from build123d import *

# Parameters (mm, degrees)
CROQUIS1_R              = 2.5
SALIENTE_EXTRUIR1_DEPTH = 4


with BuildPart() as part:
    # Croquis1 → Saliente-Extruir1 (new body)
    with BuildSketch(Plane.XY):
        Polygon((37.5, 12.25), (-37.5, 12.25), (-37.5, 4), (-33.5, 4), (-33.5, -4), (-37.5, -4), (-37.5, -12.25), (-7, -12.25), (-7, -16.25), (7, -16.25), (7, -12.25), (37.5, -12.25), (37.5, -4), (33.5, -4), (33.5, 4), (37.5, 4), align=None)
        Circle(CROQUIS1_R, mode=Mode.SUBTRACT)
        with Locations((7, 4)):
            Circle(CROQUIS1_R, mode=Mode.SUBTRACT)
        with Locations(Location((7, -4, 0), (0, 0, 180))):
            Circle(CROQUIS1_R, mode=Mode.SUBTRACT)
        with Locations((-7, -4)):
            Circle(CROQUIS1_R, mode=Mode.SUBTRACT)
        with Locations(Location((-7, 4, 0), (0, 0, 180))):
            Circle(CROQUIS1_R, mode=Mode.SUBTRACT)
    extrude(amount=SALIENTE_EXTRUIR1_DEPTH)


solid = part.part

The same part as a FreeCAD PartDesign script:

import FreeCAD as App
import Part
import Sketcher

V = App.Vector
Q = App.Units.Quantity

doc = App.newDocument("Part")
body = doc.addObject("PartDesign::Body", "Body")

sketch1 = doc.addObject("Sketcher::SketchObject", "Sketch")
body.addObject(sketch1)
sketch1.AttachmentSupport = (doc.XY_Plane, [""])
sketch1.MapMode = "FlatFace"
sketch1.addGeometry([
    Part.LineSegment(V(37.5, 12.2, 0), V(-37.5, 12.2, 0)),
    Part.LineSegment(V(-37.5, 12.2, 0), V(-37.5, 4, 0)),
    Part.LineSegment(V(-37.5, 4, 0), V(-33.5, 4, 0)),
    Part.LineSegment(V(-33.5, 4, 0), V(-33.5, -4, 0)),
    Part.LineSegment(V(-33.5, -4, 0), V(-37.5, -4, 0)),
    Part.LineSegment(V(-37.5, -4, 0), V(-37.5, -12.2, 0)),
    Part.LineSegment(V(-37.5, -12.2, 0), V(-7, -12.2, 0)),
    Part.LineSegment(V(-7, -12.2, 0), V(-7, -16.2, 0)),
    Part.LineSegment(V(-7, -16.2, 0), V(7, -16.2, 0)),
    Part.LineSegment(V(7, -16.2, 0), V(7, -12.2, 0)),
    Part.LineSegment(V(7, -12.2, 0), V(37.5, -12.2, 0)),
    Part.LineSegment(V(37.5, -12.2, 0), V(37.5, -4, 0)),
    Part.LineSegment(V(37.5, -4, 0), V(33.5, -4, 0)),
    Part.LineSegment(V(33.5, -4, 0), V(33.5, 4, 0)),
    Part.LineSegment(V(33.5, 4, 0), V(37.5, 4, 0)),
    Part.LineSegment(V(37.5, 4, 0), V(37.5, 12.2, 0)),
    Part.Circle(V(-7, -4, 0), V(0, 0, 1), 2.5),
    Part.Circle(V(7, -4, 0), V(0, 0, 1), 2.5),
    Part.Circle(V(-7, 4, 0), V(0, 0, 1), 2.5),
    Part.Circle(V(0, 0, 0), V(0, 0, 1), 2.5),
    Part.Circle(V(7, 4, 0), V(0, 0, 1), 2.5),
], False)
sketch1.addConstraint([
    Sketcher.Constraint("Coincident", 0, 2, 1, 1),
    Sketcher.Constraint("Coincident", 1, 2, 2, 1),
    Sketcher.Constraint("Coincident", 2, 2, 3, 1),
    Sketcher.Constraint("Coincident", 3, 2, 4, 1),
    Sketcher.Constraint("Coincident", 4, 2, 5, 1),
    Sketcher.Constraint("Coincident", 5, 2, 6, 1),
    Sketcher.Constraint("Coincident", 6, 2, 7, 1),
    Sketcher.Constraint("Coincident", 7, 2, 8, 1),
    Sketcher.Constraint("Coincident", 8, 2, 9, 1),
    Sketcher.Constraint("Coincident", 9, 2, 10, 1),
    Sketcher.Constraint("Coincident", 10, 2, 11, 1),
    Sketcher.Constraint("Coincident", 11, 2, 12, 1),
    Sketcher.Constraint("Coincident", 12, 2, 13, 1),
    Sketcher.Constraint("Coincident", 13, 2, 14, 1),
    Sketcher.Constraint("Coincident", 14, 2, 15, 1),
    Sketcher.Constraint("Coincident", 15, 2, 0, 1),
    Sketcher.Constraint("Horizontal", 0),
    Sketcher.Constraint("Vertical", 1),
    Sketcher.Constraint("Horizontal", 2),
    Sketcher.Constraint("Vertical", 3),
    Sketcher.Constraint("Horizontal", 4),
    Sketcher.Constraint("Vertical", 5),
    Sketcher.Constraint("Horizontal", 6),
    Sketcher.Constraint("Vertical", 7),
    Sketcher.Constraint("Horizontal", 8),
    Sketcher.Constraint("Vertical", 9),
    Sketcher.Constraint("Horizontal", 10),
    Sketcher.Constraint("Vertical", 11),
    Sketcher.Constraint("Horizontal", 12),
    Sketcher.Constraint("Vertical", 13),
    Sketcher.Constraint("Horizontal", 14),
    Sketcher.Constraint("Vertical", 15),
    Sketcher.Constraint("Coincident", 19, 3, -1, 1),
    Sketcher.Constraint("Equal", 16, 17),
    Sketcher.Constraint("Equal", 17, 18),
    Sketcher.Constraint("Equal", 18, 19),
    Sketcher.Constraint("Equal", 19, 20),
    Sketcher.Constraint("Symmetric", 17, 3, 18, 3, -1, 1),
    Sketcher.Constraint("Symmetric", 16, 3, 20, 3, -1, 1),
    Sketcher.Constraint("Symmetric", 0, 2, 10, 2, -1, 1),
    Sketcher.Constraint("Symmetric", 2, 2, 12, 2, -1, 1),
    Sketcher.Constraint("Symmetric", 4, 2, 14, 2, -1, 1),
    Sketcher.Constraint("Symmetric", 16, 3, 17, 3, -2),
    Sketcher.Constraint("Symmetric", 6, 2, 9, 2, -2),
    Sketcher.Constraint("Symmetric", 4, 2, 11, 2, -2),
    Sketcher.Constraint("Horizontal", 20, 3, 1, 2),
    Sketcher.Constraint("Vertical", 18, 3, 6, 2),
    Sketcher.Constraint("Equal", 14, 7),
    Sketcher.Constraint("Diameter", 16, Q("5 mm")),
    Sketcher.Constraint("DistanceX", 0, 2, 0, 1, Q("75 mm")),
    Sketcher.Constraint("DistanceX", 2, 1, 2, 2, Q("4 mm")),
    Sketcher.Constraint("DistanceX", 8, 1, 8, 2, Q("14 mm")),
    Sketcher.Constraint("DistanceY", 3, 2, 3, 1, Q("8 mm")),
    Sketcher.Constraint("DistanceY", 1, 2, 1, 1, Q("8.25 mm")),
])
pad1 = doc.addObject("PartDesign::Pad", "Pad")
body.addObject(pad1)
pad1.Profile = sketch1
pad1.Length = 4

doc.recompute()
